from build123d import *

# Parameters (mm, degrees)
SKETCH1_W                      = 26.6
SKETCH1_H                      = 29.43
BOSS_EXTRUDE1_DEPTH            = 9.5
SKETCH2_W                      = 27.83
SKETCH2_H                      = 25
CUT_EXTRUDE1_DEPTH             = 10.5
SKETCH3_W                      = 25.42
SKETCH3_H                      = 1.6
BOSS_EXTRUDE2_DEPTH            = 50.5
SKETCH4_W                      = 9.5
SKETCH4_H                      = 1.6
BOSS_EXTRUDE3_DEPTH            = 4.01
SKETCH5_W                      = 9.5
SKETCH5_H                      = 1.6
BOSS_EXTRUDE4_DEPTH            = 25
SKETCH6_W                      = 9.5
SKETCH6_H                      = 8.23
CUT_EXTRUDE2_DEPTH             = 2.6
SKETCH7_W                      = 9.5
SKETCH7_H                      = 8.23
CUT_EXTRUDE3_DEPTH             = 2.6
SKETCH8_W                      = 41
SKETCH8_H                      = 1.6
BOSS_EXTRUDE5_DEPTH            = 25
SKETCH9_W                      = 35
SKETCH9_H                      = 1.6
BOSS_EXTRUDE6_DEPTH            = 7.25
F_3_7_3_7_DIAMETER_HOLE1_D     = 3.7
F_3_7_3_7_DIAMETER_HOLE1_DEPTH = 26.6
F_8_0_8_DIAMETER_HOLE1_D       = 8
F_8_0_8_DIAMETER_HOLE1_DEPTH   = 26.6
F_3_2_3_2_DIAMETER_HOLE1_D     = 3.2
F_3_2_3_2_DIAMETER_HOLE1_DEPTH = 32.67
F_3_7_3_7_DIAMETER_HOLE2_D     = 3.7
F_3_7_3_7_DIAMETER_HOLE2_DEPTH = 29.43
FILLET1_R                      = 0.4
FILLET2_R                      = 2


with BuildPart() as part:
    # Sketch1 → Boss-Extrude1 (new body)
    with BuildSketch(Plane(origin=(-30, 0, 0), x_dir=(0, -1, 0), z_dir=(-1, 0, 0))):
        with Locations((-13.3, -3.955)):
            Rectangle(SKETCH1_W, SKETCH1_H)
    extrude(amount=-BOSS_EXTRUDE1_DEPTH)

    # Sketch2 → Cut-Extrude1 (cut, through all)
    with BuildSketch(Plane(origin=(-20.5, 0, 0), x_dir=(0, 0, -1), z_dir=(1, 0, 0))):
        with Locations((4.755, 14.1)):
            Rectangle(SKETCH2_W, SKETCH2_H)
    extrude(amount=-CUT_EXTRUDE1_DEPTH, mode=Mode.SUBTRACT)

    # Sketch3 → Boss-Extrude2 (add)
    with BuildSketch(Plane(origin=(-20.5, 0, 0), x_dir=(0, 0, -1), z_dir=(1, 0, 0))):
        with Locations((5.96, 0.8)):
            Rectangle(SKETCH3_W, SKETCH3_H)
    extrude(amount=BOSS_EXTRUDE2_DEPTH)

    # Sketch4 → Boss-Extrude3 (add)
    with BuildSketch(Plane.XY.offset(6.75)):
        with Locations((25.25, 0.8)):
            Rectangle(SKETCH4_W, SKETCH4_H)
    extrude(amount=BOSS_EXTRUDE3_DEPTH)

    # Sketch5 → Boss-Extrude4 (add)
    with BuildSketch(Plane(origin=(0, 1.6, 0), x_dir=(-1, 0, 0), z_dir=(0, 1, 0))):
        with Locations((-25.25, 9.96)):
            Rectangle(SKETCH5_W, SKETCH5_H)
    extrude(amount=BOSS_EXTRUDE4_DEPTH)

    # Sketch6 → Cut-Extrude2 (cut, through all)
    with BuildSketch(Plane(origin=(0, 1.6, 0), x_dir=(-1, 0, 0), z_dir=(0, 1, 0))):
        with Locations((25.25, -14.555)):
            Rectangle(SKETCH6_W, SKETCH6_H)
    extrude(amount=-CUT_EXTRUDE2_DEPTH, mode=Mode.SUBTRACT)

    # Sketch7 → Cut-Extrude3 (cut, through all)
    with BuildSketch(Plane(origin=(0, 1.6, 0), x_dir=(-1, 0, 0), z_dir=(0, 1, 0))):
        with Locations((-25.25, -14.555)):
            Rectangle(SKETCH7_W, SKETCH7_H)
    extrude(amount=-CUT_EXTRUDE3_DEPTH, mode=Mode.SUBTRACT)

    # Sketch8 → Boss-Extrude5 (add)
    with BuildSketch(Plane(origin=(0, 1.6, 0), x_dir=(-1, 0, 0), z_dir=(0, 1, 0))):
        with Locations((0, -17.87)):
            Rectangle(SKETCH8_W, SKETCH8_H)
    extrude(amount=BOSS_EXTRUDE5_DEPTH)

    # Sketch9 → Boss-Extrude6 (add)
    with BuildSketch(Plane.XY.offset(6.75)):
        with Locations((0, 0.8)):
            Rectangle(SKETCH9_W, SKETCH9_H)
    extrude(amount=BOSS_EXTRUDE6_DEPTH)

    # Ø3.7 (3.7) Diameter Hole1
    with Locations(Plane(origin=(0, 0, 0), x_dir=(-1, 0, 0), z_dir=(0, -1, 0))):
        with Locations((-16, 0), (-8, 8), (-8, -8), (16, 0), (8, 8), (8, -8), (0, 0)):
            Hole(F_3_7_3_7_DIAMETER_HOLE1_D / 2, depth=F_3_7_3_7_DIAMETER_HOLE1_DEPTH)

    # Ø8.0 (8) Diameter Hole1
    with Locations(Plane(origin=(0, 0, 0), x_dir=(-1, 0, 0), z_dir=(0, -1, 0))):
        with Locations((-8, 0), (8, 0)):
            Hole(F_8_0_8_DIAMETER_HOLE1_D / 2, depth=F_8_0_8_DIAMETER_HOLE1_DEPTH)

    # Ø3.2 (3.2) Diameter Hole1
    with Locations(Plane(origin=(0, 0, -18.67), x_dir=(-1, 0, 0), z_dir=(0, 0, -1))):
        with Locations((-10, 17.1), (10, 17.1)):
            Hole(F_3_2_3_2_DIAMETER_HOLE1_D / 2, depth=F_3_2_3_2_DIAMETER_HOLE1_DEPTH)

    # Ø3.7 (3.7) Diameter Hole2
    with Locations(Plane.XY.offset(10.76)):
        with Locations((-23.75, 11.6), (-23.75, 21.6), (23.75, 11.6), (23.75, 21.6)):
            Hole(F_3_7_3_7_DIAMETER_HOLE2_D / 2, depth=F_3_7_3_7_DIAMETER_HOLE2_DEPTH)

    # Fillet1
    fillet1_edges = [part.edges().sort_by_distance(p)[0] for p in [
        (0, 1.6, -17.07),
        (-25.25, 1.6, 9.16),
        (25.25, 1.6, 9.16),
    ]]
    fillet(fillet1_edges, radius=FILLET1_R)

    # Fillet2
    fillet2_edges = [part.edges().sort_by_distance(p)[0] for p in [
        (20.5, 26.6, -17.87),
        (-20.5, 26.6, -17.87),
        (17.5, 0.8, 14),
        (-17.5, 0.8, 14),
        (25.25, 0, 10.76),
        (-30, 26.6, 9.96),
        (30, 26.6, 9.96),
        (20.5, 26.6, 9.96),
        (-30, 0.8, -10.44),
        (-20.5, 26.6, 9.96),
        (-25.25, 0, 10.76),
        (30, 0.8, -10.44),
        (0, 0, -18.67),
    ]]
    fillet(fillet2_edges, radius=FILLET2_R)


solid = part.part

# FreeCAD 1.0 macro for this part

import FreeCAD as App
import Part
import Sketcher

V = App.Vector
Q = App.Units.Quantity


def edges_at(feature, points):
    """Names of the edges that pass closest to the given points."""
    edges = feature.Shape.Edges
    near = lambda p: min(range(len(edges)), key=lambda i: edges[i].distToShape(Part.Vertex(*p))[0])
    return sorted({f"Edge{near(p) + 1}" for p in points})

doc = App.newDocument("Part")
body = doc.addObject("PartDesign::Body", "Body")

sketch1 = doc.addObject("Sketcher::SketchObject", "Sketch")
body.addObject(sketch1)
sketch1.AttachmentSupport = (doc.YZ_Plane, [""])
sketch1.MapMode = "FlatFace"
sketch1.AttachmentOffset = App.Placement(V(0, 0, -30), App.Rotation())
sketch1.addGeometry([
    Part.LineSegment(V(27, 11, 0), V(27, -19, 0)),
    Part.LineSegment(V(27, -19, 0), V(0, -19, 0)),
    Part.LineSegment(V(0, -19, 0), V(0, 11, 0)),
    Part.LineSegment(V(0, 11, 0), V(27, 11, 0)),
], False)
sketch1.addConstraint([
    Sketcher.Constraint("Coincident", 0, 2, 1, 1),
    Sketcher.Constraint("Coincident", 1, 2, 2, 1),
    Sketcher.Constraint("Coincident", 2, 2, 3, 1),
    Sketcher.Constraint("Coincident", 3, 2, 0, 1),
    Sketcher.Constraint("Vertical", 0),
    Sketcher.Constraint("Horizontal", 1),
    Sketcher.Constraint("Vertical", 2),
    Sketcher.Constraint("Horizontal", 3),
    Sketcher.Constraint("PointOnObject", 1, 2, -2),
    Sketcher.Constraint("DistanceX", 1, 2, 1, 1, Q("26.6 mm")),
    Sketcher.Constraint("DistanceY", 0, 2, 0, 1, Q("29.43 mm")),
    Sketcher.Constraint("DistanceY", 0, 2, -1, 1, Q("18.67 mm")),
])
pad1 = doc.addObject("PartDesign::Pad", "Pad")
body.addObject(pad1)
pad1.Profile = sketch1
pad1.Length = 9.5

sketch2 = doc.addObject("Sketcher::SketchObject", "Sketch001")
body.addObject(sketch2)
sketch2.AttachmentSupport = (doc.YZ_Plane, [""])
sketch2.MapMode = "FlatFace"
sketch2.AttachmentOffset = App.Placement(V(0, 0, -20.5), App.Rotation())
sketch2.addGeometry([
    Part.LineSegment(V(27, 9, 0), V(2, 9, 0)),
    Part.LineSegment(V(2, 9, 0), V(2, -19, 0)),
    Part.LineSegment(V(2, -19, 0), V(27, -19, 0)),
    Part.LineSegment(V(27, -19, 0), V(27, 9, 0)),
], False)
sketch2.addConstraint([
    Sketcher.Constraint("Coincident", 0, 2, 1, 1),
    Sketcher.Constraint("Coincident", 1, 2, 2, 1),
    Sketcher.Constraint("Coincident", 2, 2, 3, 1),
    Sketcher.Constraint("Coincident", 3, 2, 0, 1),
    Sketcher.Constraint("Horizontal", 0),
    Sketcher.Constraint("Vertical", 1),
    Sketcher.Constraint("Horizontal", 2),
    Sketcher.Constraint("Vertical", 3),
    Sketcher.Constraint("DistanceX", 0, 2, 0, 1, Q("25 mm")),
    Sketcher.Constraint("DistanceY", 1, 2, 1, 1, Q("27.83 mm")),
    Sketcher.Constraint("DistanceX", -1, 1, 0, 2, Q("1.6 mm")),
    Sketcher.Constraint("DistanceY", -1, 1, 0, 2, Q("9.16 mm")),
])
pocket1 = doc.addObject("PartDesign::Pocket", "Pocket")
body.addObject(pocket1)
pocket1.Profile = sketch2
pocket1.Type = "ThroughAll"

sketch3 = doc.addObject("Sketcher::SketchObject", "Sketch002")
body.addObject(sketch3)
sketch3.AttachmentSupport = (doc.YZ_Plane, [""])
sketch3.MapMode = "FlatFace"
sketch3.AttachmentOffset = App.Placement(V(0, 0, -20.5), App.Rotation())
sketch3.addGeometry([
    Part.LineSegment(V(1.6, 6.8, 0), V(0, 6.8, 0)),
    Part.LineSegment(V(0, 6.8, 0), V(0, -18.7, 0)),
    Part.LineSegment(V(0, -18.7, 0), V(1.6, -18.7, 0)),
    Part.LineSegment(V(1.6, -18.7, 0), V(1.6, 6.8, 0)),
], False)
sketch3.addConstraint([
    Sketcher.Constraint("Coincident", 0, 2, 1, 1),
    Sketcher.Constraint("Coincident", 1, 2, 2, 1),
    Sketcher.Constraint("Coincident", 2, 2, 3, 1),
    Sketcher.Constraint("Coincident", 3, 2, 0, 1),
    Sketcher.Constraint("Horizontal", 0),
    Sketcher.Constraint("Vertical", 1),
    Sketcher.Constraint("Horizontal", 2),
    Sketcher.Constraint("Vertical", 3),
    Sketcher.Constraint("PointOnObject", 0, 2, -2),
    Sketcher.Constraint("DistanceX", 0, 2, 0, 1, Q("1.6 mm")),
    Sketcher.Constraint("DistanceY", 1, 2, 1, 1, Q("25.42 mm")),
    Sketcher.Constraint("DistanceY", -1, 1, 0, 2, Q("6.75 mm")),
])
pad2 = doc.addObject("PartDesign::Pad", "Pad001")
body.addObject(pad2)
pad2.Profile = sketch3
pad2.Length = 50.5

sketch4 = doc.addObject("Sketcher::SketchObject", "Sketch003")
body.addObject(sketch4)
sketch4.AttachmentSupport = (doc.XY_Plane, [""])
sketch4.MapMode = "FlatFace"
sketch4.AttachmentOffset = App.Placement(V(0, 0, 6.75), App.Rotation())
sketch4.addGeometry([
    Part.LineSegment(V(20.5, 1.6, 0), V(20.5, 0, 0)),
    Part.LineSegment(V(20.5, 0, 0), V(30, 0, 0)),
    Part.LineSegment(V(30, 0, 0), V(30, 1.6, 0)),
    Part.LineSegment(V(30, 1.6, 0), V(20.5, 1.6, 0)),
], False)
sketch4.addConstraint([
    Sketcher.Constraint("Coincident", 0, 2, 1, 1),
    Sketcher.Constraint("Coincident", 1, 2, 2, 1),
    Sketcher.Constraint("Coincident", 2, 2, 3, 1),
    Sketcher.Constraint("Coincident", 3, 2, 0, 1),
    Sketcher.Constraint("Vertical", 0),
    Sketcher.Constraint("Horizontal", 1),
    Sketcher.Constraint("Vertical", 2),
    Sketcher.Constraint("Horizontal", 3),
    Sketcher.Constraint("PointOnObject", 0, 2, -1),
    Sketcher.Constraint("DistanceX", 1, 1, 1, 2, Q("9.5 mm")),
    Sketcher.Constraint("DistanceY", 0, 2, 0, 1, Q("1.6 mm")),
    Sketcher.Constraint("DistanceX", -1, 1, 1, 2, Q("30 mm")),
])
pad3 = doc.addObject("PartDesign::Pad", "Pad002")
body.addObject(pad3)
pad3.Profile = sketch4
pad3.Length = 4.01

sketch5 = doc.addObject("Sketcher::SketchObject", "Sketch004")
body.addObject(sketch5)
sketch5.AttachmentSupport = (doc.XZ_Plane, [""])
sketch5.MapMode = "FlatFace"
sketch5.AttachmentOffset = App.Placement(V(0, 0, -1.6), App.Rotation())
sketch5.addGeometry([
    Part.LineSegment(V(30, 10.8, 0), V(30, 9.2, 0)),
    Part.LineSegment(V(30, 9.2, 0), V(20.5, 9.2, 0)),
    Part.LineSegment(V(20.5, 9.2, 0), V(20.5, 10.8, 0)),
    Part.LineSegment(V(20.5, 10.8, 0), V(30, 10.8, 0)),
], False)
sketch5.addConstraint([
    Sketcher.Constraint("Coincident", 0, 2, 1, 1),
    Sketcher.Constraint("Coincident", 1, 2, 2, 1),
    Sketcher.Constraint("Coincident", 2, 2, 3, 1),
    Sketcher.Constraint("Coincident", 3, 2, 0, 1),
    Sketcher.Constraint("Vertical", 0),
    Sketcher.Constraint("Horizontal", 1),
    Sketcher.Constraint("Vertical", 2),
    Sketcher.Constraint("Horizontal", 3),
    Sketcher.Constraint("DistanceX", 1, 2, 1, 1, Q("9.5 mm")),
    Sketcher.Constraint("DistanceY", 0, 2, 0, 1, Q("1.6 mm")),
    Sketcher.Constraint("DistanceX", -1, 1, 0, 2, Q("30 mm")),
    Sketcher.Constraint("DistanceY", -1, 1, 0, 2, Q("9.16 mm")),
])
pad4 = doc.addObject("PartDesign::Pad", "Pad003")
body.addObject(pad4)
pad4.Profile = sketch5
pad4.Length = 25
pad4.Reversed = True

sketch6 = doc.addObject("Sketcher::SketchObject", "Sketch005")
body.addObject(sketch6)
sketch6.AttachmentSupport = (doc.XZ_Plane, [""])
sketch6.MapMode = "FlatFace"
sketch6.AttachmentOffset = App.Placement(V(0, 0, -1.6), App.Rotation())
sketch6.addGeometry([
    Part.LineSegment(V(-20, -10, 0), V(-20, -19, 0)),
    Part.LineSegment(V(-20, -19, 0), V(-30, -19, 0)),
    Part.LineSegment(V(-30, -19, 0), V(-30, -10, 0)),
    Part.LineSegment(V(-30, -10, 0), V(-20, -10, 0)),
], False)
sketch6.addConstraint([
    Sketcher.Constraint("Coincident", 0, 2, 1, 1),
    Sketcher.Constraint("Coincident", 1, 2, 2, 1),
    Sketcher.Constraint("Coincident", 2, 2, 3, 1),
    Sketcher.Constraint("Coincident", 3, 2, 0, 1),
    Sketcher.Constraint("Vertical", 0),
    Sketcher.Constraint("Horizontal", 1),
    Sketcher.Constraint("Vertical", 2),
    Sketcher.Constraint("Horizontal", 3),
    Sketcher.Constraint("DistanceX", 1, 2, 1, 1, Q("9.5 mm")),
    Sketcher.Constraint("DistanceX", 1, 2, -1, 1, Q("30 mm")),
    Sketcher.Constraint("DistanceY", 0, 2, 0, 1, Q("8.23 mm")),
    Sketcher.Constraint("DistanceY", 0, 2, -1, 1, Q("18.67 mm")),
])
pocket2 = doc.addObject("PartDesign::Pocket", "Pocket001")
body.addObject(pocket2)
pocket2.Profile = sketch6
pocket2.Type = "ThroughAll"
pocket2.Reversed = True

sketch7 = doc.addObject("Sketcher::SketchObject", "Sketch006")
body.addObject(sketch7)
sketch7.AttachmentSupport = (doc.XZ_Plane, [""])
sketch7.MapMode = "FlatFace"
sketch7.AttachmentOffset = App.Placement(V(0, 0, -1.6), App.Rotation())
sketch7.addGeometry([
    Part.LineSegment(V(30, -10, 0), V(30, -19, 0)),
    Part.LineSegment(V(30, -19, 0), V(20, -19, 0)),
    Part.LineSegment(V(20, -19, 0), V(20, -10, 0)),
    Part.LineSegment(V(20, -10, 0), V(30, -10, 0)),
], False)
sketch7.addConstraint([
    Sketcher.Constraint("Coincident", 0, 2, 1, 1),
    Sketcher.Constraint("Coincident", 1, 2, 2, 1),
    Sketcher.Constraint("Coincident", 2, 2, 3, 1),
    Sketcher.Constraint("Coincident", 3, 2, 0, 1),
    Sketcher.Constraint("Vertical", 0),
    Sketcher.Constraint("Horizontal", 1),
    Sketcher.Constraint("Vertical", 2),
    Sketcher.Constraint("Horizontal", 3),
    Sketcher.Constraint("DistanceX", 1, 2, 1, 1, Q("9.5 mm")),
    Sketcher.Constraint("DistanceX", -1, 1, 0, 2, Q("30 mm")),
    Sketcher.Constraint("DistanceY", 0, 2, 0, 1, Q("8.23 mm")),
    Sketcher.Constraint("DistanceY", 0, 2, -1, 1, Q("18.67 mm")),
])
pocket3 = doc.addObject("PartDesign::Pocket", "Pocket002")
body.addObject(pocket3)
pocket3.Profile = sketch7
pocket3.Type = "ThroughAll"
pocket3.Reversed = True

sketch8 = doc.addObject("Sketcher::SketchObject", "Sketch007")
body.addObject(sketch8)
sketch8.AttachmentSupport = (doc.XZ_Plane, [""])
sketch8.MapMode = "FlatFace"
sketch8.AttachmentOffset = App.Placement(V(0, 0, -1.6), App.Rotation())
sketch8.addGeometry([
    Part.LineSegment(V(20.5, -17.1, 0), V(20.5, -18.7, 0)),
    Part.LineSegment(V(20.5, -18.7, 0), V(-20.5, -18.7, 0)),
    Part.LineSegment(V(-20.5, -18.7, 0), V(-20.5, -17.1, 0)),
    Part.LineSegment(V(-20.5, -17.1, 0), V(20.5, -17.1, 0)),
], False)
sketch8.addConstraint([
    Sketcher.Constraint("Coincident", 0, 2, 1, 1),
    Sketcher.Constraint("Coincident", 1, 2, 2, 1),
    Sketcher.Constraint("Coincident", 2, 2, 3, 1),
    Sketcher.Constraint("Coincident", 3, 2, 0, 1),
    Sketcher.Constraint("Vertical", 0),
    Sketcher.Constraint("Horizontal", 1),
    Sketcher.Constraint("Vertical", 2),
    Sketcher.Constraint("Horizontal", 3),
    Sketcher.Constraint("DistanceX", 1, 2, 1, 1, Q("41 mm")),
    Sketcher.Constraint("DistanceY", 0, 2, 0, 1, Q("1.6 mm")),
    Sketcher.Constraint("DistanceX", -1, 1, 0, 2, Q("20.5 mm")),
    Sketcher.Constraint("DistanceY", 0, 2, -1, 1, Q("18.67 mm")),
])
pad5 = doc.addObject("PartDesign::Pad", "Pad004")
body.addObject(pad5)
pad5.Profile = sketch8
pad5.Length = 25
pad5.Reversed = True

sketch9 = doc.addObject("Sketcher::SketchObject", "Sketch008")
body.addObject(sketch9)
sketch9.AttachmentSupport = (doc.XY_Plane, [""])
sketch9.MapMode = "FlatFace"
sketch9.AttachmentOffset = App.Placement(V(0, 0, 6.75), App.Rotation())
sketch9.addGeometry([
    Part.LineSegment(V(-17.5, 1.6, 0), V(-17.5, 0, 0)),
    Part.LineSegment(V(-17.5, 0, 0), V(17.5, 0, 0)),
    Part.LineSegment(V(17.5, 0, 0), V(17.5, 1.6, 0)),
    Part.LineSegment(V(17.5, 1.6, 0), V(-17.5, 1.6, 0)),
], False)
sketch9.addConstraint([
    Sketcher.Constraint("Coincident", 0, 2, 1, 1),
    Sketcher.Constraint("Coincident", 1, 2, 2, 1),
    Sketcher.Constraint("Coincident", 2, 2, 3, 1),
    Sketcher.Constraint("Coincident", 3, 2, 0, 1),
    Sketcher.Constraint("Vertical", 0),
    Sketcher.Constraint("Horizontal", 1),
    Sketcher.Constraint("Vertical", 2),
    Sketcher.Constraint("Horizontal", 3),
    Sketcher.Constraint("Symmetric", 0, 2, 1, 2, -1, 1),
    Sketcher.Constraint("DistanceX", 1, 1, 1, 2, Q("35 mm")),
    Sketcher.Constraint("DistanceY", 0, 2, 0, 1, Q("1.6 mm")),
])
pad6 = doc.addObject("PartDesign::Pad", "Pad005")
body.addObject(pad6)
pad6.Profile = sketch9
pad6.Length = 7.25

sketch10 = doc.addObject("Sketcher::SketchObject", "Sketch009")
body.addObject(sketch10)
sketch10.AttachmentSupport = (doc.XZ_Plane, [""])
sketch10.MapMode = "FlatFace"
sketch10.addGeometry([
    Part.Circle(V(16, 0, 0), V(0, 0, 1), 1.9),
    Part.Circle(V(8, -8, 0), V(0, 0, 1), 1.9),
    Part.Circle(V(8, 8, 0), V(0, 0, 1), 1.9),
    Part.Circle(V(-16, 0, 0), V(0, 0, 1), 1.9),
    Part.Circle(V(-8, -8, 0), V(0, 0, 1), 1.9),
    Part.Circle(V(-8, 8, 0), V(0, 0, 1), 1.9),
    Part.Circle(V(0, 0, 0), V(0, 0, 1), 1.9),
], False)
sketch10.addConstraint([
    Sketcher.Constraint("Coincident", 6, 3, -1, 1),
    Sketcher.Constraint("Equal", 0, 1),
    Sketcher.Constraint("Equal", 1, 2),
    Sketcher.Constraint("Equal", 2, 3),
    Sketcher.Constraint("Equal", 3, 4),
    Sketcher.Constraint("Equal", 4, 5),
    Sketcher.Constraint("Equal", 5, 6),
    Sketcher.Constraint("Symmetric", 0, 3, 3, 3, -1, 1),
    Sketcher.Constraint("Symmetric", 2, 3, 4, 3, -1, 1),
    Sketcher.Constraint("Symmetric", 1, 3, 5, 3, -1, 1),
    Sketcher.Constraint("Symmetric", 1, 3, 4, 3, -2),
    Sketcher.Constraint("PointOnObject", 0, 3, -1),
    Sketcher.Constraint("Diameter", 0, Q("3.7 mm")),
    Sketcher.Constraint("DistanceX", -1, 1, 0, 3, Q("16 mm")),
    Sketcher.Constraint("DistanceX", -1, 1, 1, 3, Q("8 mm")),
    Sketcher.Constraint("DistanceY", 1, 3, -1, 1, Q("8 mm")),
])
doc.recompute()
hole = doc.addObject("PartDesign::Hole", "Hole")
body.addObject(hole)
hole.Profile = sketch10
hole.ThreadType = "None"
hole.Diameter = 3.7
hole.DepthType = "Dimension"
hole.Depth = 26.6
hole.DrillPoint = "Flat"

sketch11 = doc.addObject("Sketcher::SketchObject", "Sketch010")
body.addObject(sketch11)
sketch11.AttachmentSupport = (doc.XZ_Plane, [""])
sketch11.MapMode = "FlatFace"
sketch11.addGeometry([
    Part.Circle(V(8, 0, 0), V(0, 0, 1), 4),
    Part.Circle(V(-8, 0, 0), V(0, 0, 1), 4),
], False)
sketch11.addConstraint([
    Sketcher.Constraint("Equal", 0, 1),
    Sketcher.Constraint("Symmetric", 0, 3, 1, 3, -1, 1),
    Sketcher.Constraint("PointOnObject", 0, 3, -1),
    Sketcher.Constraint("Diameter", 0, Q("8 mm")),
    Sketcher.Constraint("DistanceX", -1, 1, 0, 3, Q("8 mm")),
])
doc.recompute()
hole2 = doc.addObject("PartDesign::Hole", "Hole001")
body.addObject(hole2)
hole2.Profile = sketch11
hole2.ThreadType = "None"
hole2.Diameter = 8
hole2.DepthType = "Dimension"
hole2.Depth = 26.6
hole2.DrillPoint = "Flat"

sketch12 = doc.addObject("Sketcher::SketchObject", "Sketch011")
body.addObject(sketch12)
sketch12.AttachmentSupport = (doc.XY_Plane, [""])
sketch12.MapMode = "FlatFace"
sketch12.AttachmentOffset = App.Placement(V(0, 0, -18.67), App.Rotation())
sketch12.addGeometry([
    Part.Circle(V(10, 17.1, 0), V(0, 0, 1), 1.6),
    Part.Circle(V(-10, 17.1, 0), V(0, 0, 1), 1.6),
], False)
sketch12.addConstraint([
    Sketcher.Constraint("Equal", 0, 1),
    Sketcher.Constraint("Symmetric", 0, 3, 1, 3, -2),
    Sketcher.Constraint("Diameter", 0, Q("3.2 mm")),
    Sketcher.Constraint("DistanceX", -1, 1, 0, 3, Q("10 mm")),
    Sketcher.Constraint("DistanceY", -1, 1, 0, 3, Q("17.1 mm")),
])
doc.recompute()
hole3 = doc.addObject("PartDesign::Hole", "Hole002")
body.addObject(hole3)
hole3.Profile = sketch12
hole3.ThreadType = "None"
hole3.Diameter = 3.2
hole3.DepthType = "Dimension"
hole3.Depth = 32.67
hole3.DrillPoint = "Flat"
hole3.Reversed = True

sketch13 = doc.addObject("Sketcher::SketchObject", "Sketch012")
body.addObject(sketch13)
sketch13.AttachmentSupport = (doc.XY_Plane, [""])
sketch13.MapMode = "FlatFace"
sketch13.AttachmentOffset = App.Placement(V(0, 0, 10.76), App.Rotation())
sketch13.addGeometry([
    Part.Circle(V(-23.8, 11.6, 0), V(0, 0, 1), 1.9),
    Part.Circle(V(-23.8, 21.6, 0), V(0, 0, 1), 1.9),
    Part.Circle(V(23.8, 11.6, 0), V(0, 0, 1), 1.9),
    Part.Circle(V(23.8, 21.6, 0), V(0, 0, 1), 1.9),
], False)
sketch13.addConstraint([
    Sketcher.Constraint("Equal", 0, 1),
    Sketcher.Constraint("Equal", 1, 2),
    Sketcher.Constraint("Equal", 2, 3),
    Sketcher.Constraint("Symmetric", 0, 3, 2, 3, -2),
    Sketcher.Constraint("Symmetric", 1, 3, 3, 3, -2),
    Sketcher.Constraint("Vertical", 0, 3, 1, 3),
    Sketcher.Constraint("Diameter", 0, Q("3.7 mm")),
    Sketcher.Constraint("DistanceY", 0, 3, 1, 3, Q("10 mm")),
    Sketcher.Constraint("DistanceY", -1, 1, 0, 3, Q("11.6 mm")),
    Sketcher.Constraint("DistanceX", 0, 3, 2, 3, Q("47.5 mm")),
])
doc.recompute()
hole4 = doc.addObject("PartDesign::Hole", "Hole003")
body.addObject(hole4)
hole4.Profile = sketch13
hole4.ThreadType = "None"
hole4.Diameter = 3.7
hole4.DepthType = "Dimension"
hole4.Depth = 29.43
hole4.DrillPoint = "Flat"
doc.recompute()

fillet = doc.addObject("PartDesign::Fillet", "Fillet")
body.addObject(fillet)
fillet.Base = (hole4, edges_at(hole4, [(0, 1.6, -17.07), (-25.25, 1.6, 9.16), (25.25, 1.6, 9.16)]))
fillet.Radius = 0.4
doc.recompute()

fillet2 = doc.addObject("PartDesign::Fillet", "Fillet001")
body.addObject(fillet2)
fillet2.Base = (fillet, edges_at(fillet, [
    (20.5, 26.6, -17.87),
    (-20.5, 26.6, -17.87),
    (17.5, 0.8, 14),
    (-17.5, 0.8, 14),
    (25.25, 0, 10.76),
    (-30, 26.6, 9.96),
    (30, 26.6, 9.96),
    (20.5, 26.6, 9.96),
    (-30, 0.8, -10.44),
    (-20.5, 26.6, 9.96),
    (-25.25, 0, 10.76),
    (30, 0.8, -10.44),
    (0, 0, -18.67),
]))
fillet2.Radius = 2

doc.recompute()
